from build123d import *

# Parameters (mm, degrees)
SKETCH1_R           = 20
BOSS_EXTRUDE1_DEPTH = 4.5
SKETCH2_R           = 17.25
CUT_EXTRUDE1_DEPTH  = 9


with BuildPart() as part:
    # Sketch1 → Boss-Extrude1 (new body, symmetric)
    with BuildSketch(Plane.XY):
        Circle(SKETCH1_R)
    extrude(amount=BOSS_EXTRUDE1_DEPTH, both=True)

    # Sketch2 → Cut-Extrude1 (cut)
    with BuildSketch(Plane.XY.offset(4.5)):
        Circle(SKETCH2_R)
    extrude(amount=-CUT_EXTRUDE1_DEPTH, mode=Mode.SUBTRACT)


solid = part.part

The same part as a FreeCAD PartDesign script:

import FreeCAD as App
import Part
import Sketcher
from FreeCAD import Vector
Q = App.Units.Quantity

doc = App.newDocument("Part")
body = doc.addObject("PartDesign::Body", "Body")

# Sketch on XY plane
sketch1 = body.newObject("Sketcher::SketchObject", "Sketch")
sketch1.AttachmentSupport = (doc.getObject("XY_Plane"), [""])
sketch1.MapMode = "FlatFace"
sketch1.addGeometry(Part.Circle(Vector(0, 0, 0), Vector(0, 0, 1), 20), False)
sketch1.addConstraint([
    Sketcher.Constraint("Coincident", 0, 3, -1, 1),
    Sketcher.Constraint("Diameter", 0, Q("40 mm")),
])
pad1 = body.newObject("PartDesign::Pad", "Pad")
pad1.Profile = sketch1
pad1.Length = 9
pad1.Midplane = True

# Sketch on XY plane
sketch2 = body.newObject("Sketcher::SketchObject", "Sketch001")
sketch2.AttachmentSupport = (doc.getObject("XY_Plane"), [""])
sketch2.MapMode = "FlatFace"
sketch2.AttachmentOffset = App.Placement(Vector(0, 0, 4.5), App.Rotation())
sketch2.addGeometry(Part.Circle(Vector(0, 0, 0), Vector(0, 0, 1), 17.25), False)
sketch2.addConstraint([
    Sketcher.Constraint("Coincident", 0, 3, -1, 1),
    Sketcher.Constraint("Diameter", 0, Q("34.5 mm")),
])
pocket1 = body.newObject("PartDesign::Pocket", "Pocket")
pocket1.Profile = sketch2
pocket1.Length = 9

doc.recompute()
